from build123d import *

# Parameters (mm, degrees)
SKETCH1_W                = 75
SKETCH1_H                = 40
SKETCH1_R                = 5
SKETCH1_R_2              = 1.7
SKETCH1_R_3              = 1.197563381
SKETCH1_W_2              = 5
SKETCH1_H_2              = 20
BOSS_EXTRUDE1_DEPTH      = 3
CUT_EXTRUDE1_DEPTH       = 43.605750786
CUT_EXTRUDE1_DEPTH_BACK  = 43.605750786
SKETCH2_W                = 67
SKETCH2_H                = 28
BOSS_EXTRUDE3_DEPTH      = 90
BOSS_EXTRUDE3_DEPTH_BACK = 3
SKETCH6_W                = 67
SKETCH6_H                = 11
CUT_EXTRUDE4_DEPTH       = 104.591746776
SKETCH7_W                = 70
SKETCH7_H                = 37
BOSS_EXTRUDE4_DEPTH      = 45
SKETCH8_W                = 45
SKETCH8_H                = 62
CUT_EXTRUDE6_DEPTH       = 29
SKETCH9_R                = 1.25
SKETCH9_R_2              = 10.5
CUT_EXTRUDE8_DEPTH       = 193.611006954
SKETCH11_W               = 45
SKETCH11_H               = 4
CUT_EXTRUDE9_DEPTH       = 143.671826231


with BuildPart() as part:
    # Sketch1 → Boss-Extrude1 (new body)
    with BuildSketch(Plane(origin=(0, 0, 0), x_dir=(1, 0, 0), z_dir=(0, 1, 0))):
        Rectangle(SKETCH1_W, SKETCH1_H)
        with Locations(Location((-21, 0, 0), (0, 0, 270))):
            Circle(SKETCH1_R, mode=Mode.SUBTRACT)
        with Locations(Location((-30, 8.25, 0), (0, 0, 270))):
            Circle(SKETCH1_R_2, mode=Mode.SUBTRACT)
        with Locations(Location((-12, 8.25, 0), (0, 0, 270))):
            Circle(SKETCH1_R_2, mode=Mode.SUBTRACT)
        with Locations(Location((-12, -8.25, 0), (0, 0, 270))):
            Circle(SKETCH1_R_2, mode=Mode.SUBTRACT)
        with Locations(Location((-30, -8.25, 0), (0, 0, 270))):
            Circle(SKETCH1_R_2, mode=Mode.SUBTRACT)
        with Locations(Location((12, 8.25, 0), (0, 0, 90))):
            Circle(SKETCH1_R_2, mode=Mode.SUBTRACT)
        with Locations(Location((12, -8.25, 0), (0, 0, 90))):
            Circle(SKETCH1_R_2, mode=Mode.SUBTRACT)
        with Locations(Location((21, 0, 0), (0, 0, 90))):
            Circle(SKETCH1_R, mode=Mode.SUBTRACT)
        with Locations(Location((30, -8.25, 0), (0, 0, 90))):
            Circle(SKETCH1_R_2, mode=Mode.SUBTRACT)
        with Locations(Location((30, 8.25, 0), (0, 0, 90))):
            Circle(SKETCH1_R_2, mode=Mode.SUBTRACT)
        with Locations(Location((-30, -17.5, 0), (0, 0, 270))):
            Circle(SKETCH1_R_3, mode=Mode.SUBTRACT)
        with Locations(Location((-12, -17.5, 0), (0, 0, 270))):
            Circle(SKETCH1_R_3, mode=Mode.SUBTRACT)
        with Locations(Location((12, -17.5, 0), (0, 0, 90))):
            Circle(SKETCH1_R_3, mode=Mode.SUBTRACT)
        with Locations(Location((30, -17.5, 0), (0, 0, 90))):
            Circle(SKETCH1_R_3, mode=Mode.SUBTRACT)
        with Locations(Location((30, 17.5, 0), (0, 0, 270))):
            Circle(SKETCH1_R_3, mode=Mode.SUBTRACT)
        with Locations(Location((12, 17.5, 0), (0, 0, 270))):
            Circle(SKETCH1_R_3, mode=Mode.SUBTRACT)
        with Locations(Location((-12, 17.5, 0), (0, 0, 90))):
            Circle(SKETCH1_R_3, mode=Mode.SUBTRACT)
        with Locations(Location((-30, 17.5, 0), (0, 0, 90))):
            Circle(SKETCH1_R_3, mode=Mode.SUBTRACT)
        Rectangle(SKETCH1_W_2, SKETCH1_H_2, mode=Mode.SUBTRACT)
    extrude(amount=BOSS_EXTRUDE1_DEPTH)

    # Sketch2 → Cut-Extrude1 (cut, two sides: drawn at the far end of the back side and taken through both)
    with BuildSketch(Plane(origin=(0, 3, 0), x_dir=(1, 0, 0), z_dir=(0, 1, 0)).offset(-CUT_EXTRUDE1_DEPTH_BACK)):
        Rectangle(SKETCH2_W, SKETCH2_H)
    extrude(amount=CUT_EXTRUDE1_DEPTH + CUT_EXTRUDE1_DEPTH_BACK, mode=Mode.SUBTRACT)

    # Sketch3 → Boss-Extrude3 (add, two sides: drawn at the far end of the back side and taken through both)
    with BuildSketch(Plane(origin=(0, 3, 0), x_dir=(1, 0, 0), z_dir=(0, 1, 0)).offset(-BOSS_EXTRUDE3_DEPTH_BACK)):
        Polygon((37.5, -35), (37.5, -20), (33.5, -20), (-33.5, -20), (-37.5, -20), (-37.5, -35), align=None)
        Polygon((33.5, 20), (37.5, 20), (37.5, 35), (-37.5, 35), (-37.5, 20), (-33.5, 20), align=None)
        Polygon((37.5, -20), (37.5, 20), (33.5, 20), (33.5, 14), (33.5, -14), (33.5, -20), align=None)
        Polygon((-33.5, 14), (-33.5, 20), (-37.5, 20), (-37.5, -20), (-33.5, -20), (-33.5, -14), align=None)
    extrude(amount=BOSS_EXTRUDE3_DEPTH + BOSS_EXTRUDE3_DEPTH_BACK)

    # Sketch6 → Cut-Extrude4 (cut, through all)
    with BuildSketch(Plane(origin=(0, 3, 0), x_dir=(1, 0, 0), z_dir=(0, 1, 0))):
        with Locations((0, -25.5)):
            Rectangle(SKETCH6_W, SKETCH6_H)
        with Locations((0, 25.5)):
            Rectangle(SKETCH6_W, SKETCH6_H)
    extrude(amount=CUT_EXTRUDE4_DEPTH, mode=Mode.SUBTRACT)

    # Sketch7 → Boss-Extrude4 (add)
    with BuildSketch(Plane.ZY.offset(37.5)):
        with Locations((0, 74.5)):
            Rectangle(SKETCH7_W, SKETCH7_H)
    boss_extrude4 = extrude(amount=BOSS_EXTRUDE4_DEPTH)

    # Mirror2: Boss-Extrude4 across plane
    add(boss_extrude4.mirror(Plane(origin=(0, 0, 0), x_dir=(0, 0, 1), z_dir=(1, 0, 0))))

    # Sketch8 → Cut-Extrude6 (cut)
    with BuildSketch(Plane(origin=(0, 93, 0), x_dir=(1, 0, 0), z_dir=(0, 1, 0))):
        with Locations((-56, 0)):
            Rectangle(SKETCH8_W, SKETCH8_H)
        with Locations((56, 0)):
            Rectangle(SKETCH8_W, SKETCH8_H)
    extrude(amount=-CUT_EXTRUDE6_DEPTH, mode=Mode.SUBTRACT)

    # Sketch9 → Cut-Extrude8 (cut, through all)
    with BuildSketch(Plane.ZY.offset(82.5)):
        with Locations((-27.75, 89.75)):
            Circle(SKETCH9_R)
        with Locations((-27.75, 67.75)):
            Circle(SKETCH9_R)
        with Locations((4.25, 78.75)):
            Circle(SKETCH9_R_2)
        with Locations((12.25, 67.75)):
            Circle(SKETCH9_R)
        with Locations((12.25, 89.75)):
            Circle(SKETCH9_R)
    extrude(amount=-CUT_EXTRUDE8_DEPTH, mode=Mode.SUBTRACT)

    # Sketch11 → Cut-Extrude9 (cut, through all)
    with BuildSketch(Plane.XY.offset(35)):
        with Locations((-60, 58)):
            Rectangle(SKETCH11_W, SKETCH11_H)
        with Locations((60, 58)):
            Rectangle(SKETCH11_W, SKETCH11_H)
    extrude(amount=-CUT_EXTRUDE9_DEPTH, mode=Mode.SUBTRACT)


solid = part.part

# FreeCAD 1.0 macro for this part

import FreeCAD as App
import Part
import Sketcher

doc = App.newDocument("Part")
body = doc.addObject("PartDesign::Body", "Body")

# Sketch on XZ plane
sketch1 = doc.addObject("Sketcher::SketchObject", "Sketch")
body.addObject(sketch1)
sketch1.AttachmentSupport = (doc.XZ_Plane, [""])
sketch1.MapMode = "FlatFace"
sketch1.addGeometry([
    Part.LineSegment(App.Vector(-37.5, -20, 0), App.Vector(-37.5, 20, 0)),  # 0
    Part.LineSegment(App.Vector(-37.5, 20, 0), App.Vector(37.5, 20, 0)),  # 1
    Part.LineSegment(App.Vector(37.5, 20, 0), App.Vector(37.5, -20, 0)),  # 2
    Part.LineSegment(App.Vector(37.5, -20, 0), App.Vector(-37.5, -20, 0)),  # 3
    Part.Circle(App.Vector(-30, 17.5, 0), App.Vector(0, 0, 1), 1.2),  # 4
    Part.Circle(App.Vector(-12, 17.5, 0), App.Vector(0, 0, 1), 1.2),  # 5
    Part.Circle(App.Vector(-30, 8.2, 0), App.Vector(0, 0, 1), 1.7),  # 6
    Part.Circle(App.Vector(-12, 8.2, 0), App.Vector(0, 0, 1), 1.7),  # 7
    Part.Circle(App.Vector(12, 17.5, 0), App.Vector(0, 0, 1), 1.2),  # 8
    Part.Circle(App.Vector(30, 17.5, 0), App.Vector(0, 0, 1), 1.2),  # 9
    Part.Circle(App.Vector(12, 8.2, 0), App.Vector(0, 0, 1), 1.7),  # 10
    Part.Circle(App.Vector(30, 8.2, 0), App.Vector(0, 0, 1), 1.7),  # 11
    Part.Circle(App.Vector(-21, 0, 0), App.Vector(0, 0, 1), 5),  # 12
    Part.Circle(App.Vector(-30, -8.2, 0), App.Vector(0, 0, 1), 1.7),  # 13
    Part.LineSegment(App.Vector(2.5, 10, 0), App.Vector(-2.5, 10, 0)),  # 14
    Part.LineSegment(App.Vector(-2.5, 10, 0), App.Vector(-2.5, -10, 0)),  # 15
    Part.LineSegment(App.Vector(-2.5, -10, 0), App.Vector(2.5, -10, 0)),  # 16
    Part.LineSegment(App.Vector(2.5, -10, 0), App.Vector(2.5, 10, 0)),  # 17
    Part.Circle(App.Vector(-12, -8.2, 0), App.Vector(0, 0, 1), 1.7),  # 18
    Part.Circle(App.Vector(-30, -17.5, 0), App.Vector(0, 0, 1), 1.2),  # 19
    Part.Circle(App.Vector(-12, -17.5, 0), App.Vector(0, 0, 1), 1.2),  # 20
    Part.Circle(App.Vector(12, -8.2, 0), App.Vector(0, 0, 1), 1.7),  # 21
    Part.Circle(App.Vector(21, 0, 0), App.Vector(0, 0, 1), 5),  # 22
    Part.Circle(App.Vector(30, -8.2, 0), App.Vector(0, 0, 1), 1.7),  # 23
    Part.Circle(App.Vector(12, -17.5, 0), App.Vector(0, 0, 1), 1.2),  # 24
    Part.Circle(App.Vector(30, -17.5, 0), App.Vector(0, 0, 1), 1.2),  # 25
], False)
sketch1.addConstraint([
    Sketcher.Constraint("Coincident", 0, 2, 1, 1),
    Sketcher.Constraint("Coincident", 1, 2, 2, 1),
    Sketcher.Constraint("Coincident", 2, 2, 3, 1),
    Sketcher.Constraint("Coincident", 3, 2, 0, 1),
    Sketcher.Constraint("Coincident", 14, 2, 15, 1),
    Sketcher.Constraint("Coincident", 15, 2, 16, 1),
    Sketcher.Constraint("Coincident", 16, 2, 17, 1),
    Sketcher.Constraint("Coincident", 17, 2, 14, 1),
    Sketcher.Constraint("Vertical", 0),
    Sketcher.Constraint("Horizontal", 1),
    Sketcher.Constraint("Vertical", 2),
    Sketcher.Constraint("Horizontal", 3),
    Sketcher.Constraint("Horizontal", 14),
    Sketcher.Constraint("Vertical", 15),
    Sketcher.Constraint("Horizontal", 16),
    Sketcher.Constraint("Vertical", 17),
    Sketcher.Constraint("Equal", 4, 5),
    Sketcher.Constraint("Equal", 6, 7),
    Sketcher.Constraint("Equal", 5, 8),
    Sketcher.Constraint("Equal", 8, 9),
    Sketcher.Constraint("Equal", 7, 10),
    Sketcher.Constraint("Equal", 10, 11),
    Sketcher.Constraint("Equal", 11, 13),
    Sketcher.Constraint("Equal", 13, 18),
    Sketcher.Constraint("Equal", 9, 19),
    Sketcher.Constraint("Equal", 19, 20),
    Sketcher.Constraint("Equal", 18, 21),
    Sketcher.Constraint("Equal", 12, 22),
    Sketcher.Constraint("Equal", 21, 23),
    Sketcher.Constraint("Equal", 20, 24),
    Sketcher.Constraint("Equal", 24, 25),
    Sketcher.Constraint("Symmetric", 11, 3, 13, 3, -1, 1),
    Sketcher.Constraint("Symmetric", 10, 3, 18, 3, -1, 1),
    Sketcher.Constraint("Symmetric", 9, 3, 19, 3, -1, 1),
    Sketcher.Constraint("Symmetric", 8, 3, 20, 3, -1, 1),
    Sketcher.Constraint("Symmetric", 7, 3, 21, 3, -1, 1),
    Sketcher.Constraint("Symmetric", 12, 3, 22, 3, -1, 1),
    Sketcher.Constraint("Symmetric", 6, 3, 23, 3, -1, 1),
    Sketcher.Constraint("Symmetric", 5, 3, 24, 3, -1, 1),
    Sketcher.Constraint("Symmetric", 4, 3, 25, 3, -1, 1),
    Sketcher.Constraint("Symmetric", 0, 2, 2, 2, -1, 1),
    Sketcher.Constraint("Symmetric", 14, 2, 16, 2, -1, 1),
    Sketcher.Constraint("Symmetric", 5, 3, 8, 3, -2),
    Sketcher.Constraint("Symmetric", 4, 3, 9, 3, -2),
    Sketcher.Constraint("Symmetric", 7, 3, 10, 3, -2),
    Sketcher.Constraint("Symmetric", 6, 3, 11, 3, -2),
    Sketcher.Constraint("PointOnObject", 12, 3, -1),
    Sketcher.Constraint("Horizontal", 4, 3, 5, 3),
    Sketcher.Constraint("Horizontal", 6, 3, 7, 3),
    Sketcher.Constraint("Vertical", 4, 3, 6, 3),
    Sketcher.Constraint("Vertical", 5, 3, 7, 3),
    Sketcher.Constraint("Diameter", 12, 10.0),
    Sketcher.Constraint("Diameter", 6, 3.4),
    Sketcher.Constraint("DistanceX", 1, 1, 1, 2, 75.0),
    Sketcher.Constraint("DistanceX", 14, 2, 14, 1, 5.0),
    Sketcher.Constraint("DistanceY", 0, 1, 0, 2, 40.0),
    Sketcher.Constraint("DistanceY", 15, 2, 15, 1, 20.0),
    Sketcher.Constraint("DistanceX", 4, 3, -1, 1, 30.0),
    Sketcher.Constraint("DistanceX", 5, 3, -1, 1, 12.0),
    Sketcher.Constraint("DistanceX", 12, 3, -1, 1, 21.0),
    Sketcher.Constraint("DistanceY", -1, 1, 4, 3, 17.5),
    Sketcher.Constraint("DistanceY", 13, 3, 6, 3, 16.5),
    Sketcher.Constraint("Diameter", 4, 2.395127),
])
pad1 = doc.addObject("PartDesign::Pad", "Pad")
body.addObject(pad1)
pad1.Profile = sketch1
pad1.Length = 3
pad1.Reversed = True

# Sketch on XZ plane
sketch2 = doc.addObject("Sketcher::SketchObject", "Sketch001")
body.addObject(sketch2)
sketch2.AttachmentSupport = (doc.XZ_Plane, [""])
sketch2.MapMode = "FlatFace"
sketch2.AttachmentOffset = App.Placement(App.Vector(0, 0, -3), App.Rotation())
sketch2.addGeometry([
    Part.LineSegment(App.Vector(-34, -14, 0), App.Vector(-34, 14, 0)),
    Part.LineSegment(App.Vector(-34, 14, 0), App.Vector(34, 14, 0)),
    Part.LineSegment(App.Vector(34, 14, 0), App.Vector(34, -14, 0)),
    Part.LineSegment(App.Vector(34, -14, 0), App.Vector(-34, -14, 0)),
], False)
sketch2.addConstraint([
    Sketcher.Constraint("Coincident", 0, 2, 1, 1),
    Sketcher.Constraint("Coincident", 1, 2, 2, 1),
    Sketcher.Constraint("Coincident", 2, 2, 3, 1),
    Sketcher.Constraint("Coincident", 3, 2, 0, 1),
    Sketcher.Constraint("Vertical", 0),
    Sketcher.Constraint("Horizontal", 1),
    Sketcher.Constraint("Vertical", 2),
    Sketcher.Constraint("Horizontal", 3),
    Sketcher.Constraint("Symmetric", 0, 2, 2, 2, -1, 1),
    Sketcher.Constraint("DistanceX", 1, 1, 1, 2, 67.0),
    Sketcher.Constraint("DistanceY", 0, 1, 0, 2, 28.0),
])
pocket1 = doc.addObject("PartDesign::Pocket", "Pocket")
body.addObject(pocket1)
pocket1.Profile = sketch2
pocket1.Type = "ThroughAll"
pocket1.Midplane = True

# Sketch on XZ plane
sketch3 = doc.addObject("Sketcher::SketchObject", "Sketch002")
body.addObject(sketch3)
sketch3.AttachmentSupport = (doc.XZ_Plane, [""])
sketch3.MapMode = "FlatFace"
sketch3.AttachmentOffset = App.Placement(App.Vector(0, 0, -3), App.Rotation())
sketch3.addGeometry([
    Part.LineSegment(App.Vector(38, 35, 0), App.Vector(38, -35, 0)),  # 0
    Part.LineSegment(App.Vector(38, -35, 0), App.Vector(-38, -35, 0)),  # 1
    Part.LineSegment(App.Vector(-38, -35, 0), App.Vector(-38, 35, 0)),  # 2
    Part.LineSegment(App.Vector(-38, 35, 0), App.Vector(38, 35, 0)),  # 3
    Part.LineSegment(App.Vector(-34, -20, 0), App.Vector(34, -20, 0)),  # 4
    Part.LineSegment(App.Vector(34, -20, 0), App.Vector(34, 20, 0)),  # 5
    Part.LineSegment(App.Vector(34, 20, 0), App.Vector(-34, 20, 0)),  # 6
    Part.LineSegment(App.Vector(-34, 20, 0), App.Vector(-34, -20, 0)),  # 7
], False)
sketch3.addConstraint([
    Sketcher.Constraint("Coincident", 0, 2, 1, 1),
    Sketcher.Constraint("Coincident", 1, 2, 2, 1),
    Sketcher.Constraint("Coincident", 2, 2, 3, 1),
    Sketcher.Constraint("Coincident", 3, 2, 0, 1),
    Sketcher.Constraint("Coincident", 4, 2, 5, 1),
    Sketcher.Constraint("Coincident", 5, 2, 6, 1),
    Sketcher.Constraint("Coincident", 6, 2, 7, 1),
    Sketcher.Constraint("Coincident", 7, 2, 4, 1),
    Sketcher.Constraint("Vertical", 0),
    Sketcher.Constraint("Horizontal", 1),
    Sketcher.Constraint("Vertical", 2),
    Sketcher.Constraint("Horizontal", 3),
    Sketcher.Constraint("Horizontal", 4),
    Sketcher.Constraint("Vertical", 5),
    Sketcher.Constraint("Horizontal", 6),
    Sketcher.Constraint("Vertical", 7),
    Sketcher.Constraint("Symmetric", 0, 2, 2, 2, -1, 1),
    Sketcher.Constraint("Symmetric", 4, 2, 6, 2, -1, 1),
    Sketcher.Constraint("DistanceX", 1, 2, 1, 1, 75.0),
    Sketcher.Constraint("DistanceX", 4, 1, 4, 2, 67.0),
    Sketcher.Constraint("DistanceY", 0, 2, 0, 1, 70.0),
    Sketcher.Constraint("DistanceY", 5, 1, 5, 2, 40.0),
])
pad2 = doc.addObject("PartDesign::Pad", "Pad001")
body.addObject(pad2)
pad2.Profile = sketch3
pad2.Type = "TwoLengths"
pad2.Length = 90
pad2.Length2 = 3
pad2.Reversed = True

# Sketch on XZ plane
sketch4 = doc.addObject("Sketcher::SketchObject", "Sketch003")
body.addObject(sketch4)
sketch4.AttachmentSupport = (doc.XZ_Plane, [""])
sketch4.MapMode = "FlatFace"
sketch4.AttachmentOffset = App.Placement(App.Vector(0, 0, -3), App.Rotation())
sketch4.addGeometry([
    Part.LineSegment(App.Vector(-34, 20, 0), App.Vector(-34, 31, 0)),  # 0
    Part.LineSegment(App.Vector(-34, 31, 0), App.Vector(34, 31, 0)),  # 1
    Part.LineSegment(App.Vector(34, 31, 0), App.Vector(34, 20, 0)),  # 2
    Part.LineSegment(App.Vector(34, 20, 0), App.Vector(-34, 20, 0)),  # 3
    Part.LineSegment(App.Vector(-34, -31, 0), App.Vector(-34, -20, 0)),  # 4
    Part.LineSegment(App.Vector(-34, -20, 0), App.Vector(34, -20, 0)),  # 5
    Part.LineSegment(App.Vector(34, -20, 0), App.Vector(34, -31, 0)),  # 6
    Part.LineSegment(App.Vector(34, -31, 0), App.Vector(-34, -31, 0)),  # 7
], False)
sketch4.addConstraint([
    Sketcher.Constraint("Coincident", 0, 2, 1, 1),
    Sketcher.Constraint("Coincident", 1, 2, 2, 1),
    Sketcher.Constraint("Coincident", 2, 2, 3, 1),
    Sketcher.Constraint("Coincident", 3, 2, 0, 1),
    Sketcher.Constraint("Coincident", 4, 2, 5, 1),
    Sketcher.Constraint("Coincident", 5, 2, 6, 1),
    Sketcher.Constraint("Coincident", 6, 2, 7, 1),
    Sketcher.Constraint("Coincident", 7, 2, 4, 1),
    Sketcher.Constraint("Vertical", 0),
    Sketcher.Constraint("Horizontal", 1),
    Sketcher.Constraint("Vertical", 2),
    Sketcher.Constraint("Horizontal", 3),
    Sketcher.Constraint("Vertical", 4),
    Sketcher.Constraint("Horizontal", 5),
    Sketcher.Constraint("Vertical", 6),
    Sketcher.Constraint("Horizontal", 7),
    Sketcher.Constraint("Symmetric", 2, 2, 4, 2, -1, 1),
    Sketcher.Constraint("Symmetric", 0, 2, 6, 2, -1, 1),
    Sketcher.Constraint("Vertical", 3, 2, 4, 2),
    Sketcher.Constraint("DistanceX", 1, 1, 1, 2, 67.0),
    Sketcher.Constraint("DistanceY", 0, 1, 0, 2, 11.0),
    Sketcher.Constraint("DistanceY", -1, 1, 0, 2, 31.0),
])
pocket2 = doc.addObject("PartDesign::Pocket", "Pocket001")
body.addObject(pocket2)
pocket2.Profile = sketch4
pocket2.Type = "ThroughAll"

# Sketch on YZ plane
sketch5 = doc.addObject("Sketcher::SketchObject", "Sketch004")
body.addObject(sketch5)
sketch5.AttachmentSupport = (doc.YZ_Plane, [""])
sketch5.MapMode = "FlatFace"
sketch5.AttachmentOffset = App.Placement(App.Vector(0, 0, -37.5), App.Rotation())
sketch5.addGeometry([
    Part.LineSegment(App.Vector(93, -35, 0), App.Vector(56, -35, 0)),
    Part.LineSegment(App.Vector(56, -35, 0), App.Vector(56, 35, 0)),
    Part.LineSegment(App.Vector(56, 35, 0), App.Vector(93, 35, 0)),
    Part.LineSegment(App.Vector(93, 35, 0), App.Vector(93, -35, 0)),
], False)
sketch5.addConstraint([
    Sketcher.Constraint("Coincident", 0, 2, 1, 1),
    Sketcher.Constraint("Coincident", 1, 2, 2, 1),
    Sketcher.Constraint("Coincident", 2, 2, 3, 1),
    Sketcher.Constraint("Coincident", 3, 2, 0, 1),
    Sketcher.Constraint("Horizontal", 0),
    Sketcher.Constraint("Vertical", 1),
    Sketcher.Constraint("Horizontal", 2),
    Sketcher.Constraint("Vertical", 3),
    Sketcher.Constraint("DistanceX", 0, 2, 0, 1, 37.0),
    Sketcher.Constraint("DistanceY", 1, 1, 1, 2, 70.0),
    Sketcher.Constraint("DistanceX", -1, 1, 0, 2, 56.0),
    Sketcher.Constraint("DistanceY", 0, 2, -1, 1, 35.0),
])
pad3 = doc.addObject("PartDesign::Pad", "Pad002")
body.addObject(pad3)
pad3.Profile = sketch5
pad3.Length = 45
pad3.Reversed = True
doc.recompute()

mirrored = doc.addObject("PartDesign::Mirrored", "Mirrored")
body.addObject(mirrored)
mirrored.Originals = [pad3]
mirrored.MirrorPlane = (doc.YZ_Plane, [""])
body.Tip = mirrored

# Sketch on XZ plane
sketch6 = doc.addObject("Sketcher::SketchObject", "Sketch005")
body.addObject(sketch6)
sketch6.AttachmentSupport = (doc.XZ_Plane, [""])
sketch6.MapMode = "FlatFace"
sketch6.AttachmentOffset = App.Placement(App.Vector(0, 0, -93), App.Rotation())
sketch6.addGeometry([
    Part.LineSegment(App.Vector(-78, -31, 0), App.Vector(-78, 31, 0)),  # 0
    Part.LineSegment(App.Vector(-78, 31, 0), App.Vector(-34, 31, 0)),  # 1
    Part.LineSegment(App.Vector(-34, 31, 0), App.Vector(-34, -31, 0)),  # 2
    Part.LineSegment(App.Vector(-34, -31, 0), App.Vector(-78, -31, 0)),  # 3
    Part.LineSegment(App.Vector(34, -31, 0), App.Vector(34, 31, 0)),  # 4
    Part.LineSegment(App.Vector(34, 31, 0), App.Vector(78, 31, 0)),  # 5
    Part.LineSegment(App.Vector(78, 31, 0), App.Vector(78, -31, 0)),  # 6
    Part.LineSegment(App.Vector(78, -31, 0), App.Vector(34, -31, 0)),  # 7
], False)
sketch6.addConstraint([
    Sketcher.Constraint("Coincident", 0, 2, 1, 1),
    Sketcher.Constraint("Coincident", 1, 2, 2, 1),
    Sketcher.Constraint("Coincident", 2, 2, 3, 1),
    Sketcher.Constraint("Coincident", 3, 2, 0, 1),
    Sketcher.Constraint("Coincident", 4, 2, 5, 1),
    Sketcher.Constraint("Coincident", 5, 2, 6, 1),
    Sketcher.Constraint("Coincident", 6, 2, 7, 1),
    Sketcher.Constraint("Coincident", 7, 2, 4, 1),
    Sketcher.Constraint("Vertical", 0),
    Sketcher.Constraint("Horizontal", 1),
    Sketcher.Constraint("Vertical", 2),
    Sketcher.Constraint("Horizontal", 3),
    Sketcher.Constraint("Vertical", 4),
    Sketcher.Constraint("Horizontal", 5),
    Sketcher.Constraint("Vertical", 6),
    Sketcher.Constraint("Horizontal", 7),
    Sketcher.Constraint("Symmetric", 2, 2, 4, 2, -1, 1),
    Sketcher.Constraint("Symmetric", 0, 2, 6, 2, -1, 1),
    Sketcher.Constraint("Horizontal", 1, 2, 4, 2),
    Sketcher.Constraint("DistanceX", 1, 1, 1, 2, 45.0),
    Sketcher.Constraint("DistanceY", 0, 1, 0, 2, 62.0),
    Sketcher.Constraint("DistanceX", 1, 2, 4, 2, 67.0),
])
pocket3 = doc.addObject("PartDesign::Pocket", "Pocket002")
body.addObject(pocket3)
pocket3.Profile = sketch6
pocket3.Length = 29
pocket3.Reversed = True

# Sketch on YZ plane
sketch7 = doc.addObject("Sketcher::SketchObject", "Sketch006")
body.addObject(sketch7)
sketch7.AttachmentSupport = (doc.YZ_Plane, [""])
sketch7.MapMode = "FlatFace"
sketch7.AttachmentOffset = App.Placement(App.Vector(0, 0, -82.5), App.Rotation())
sketch7.addGeometry([
    Part.Circle(App.Vector(89.8, -27.8, 0), App.Vector(0, 0, 1), 1.2),  # 0
    Part.Circle(App.Vector(67.8, -27.8, 0), App.Vector(0, 0, 1), 1.2),  # 1
    Part.Circle(App.Vector(78.8, 4.2, 0), App.Vector(0, 0, 1), 10.5),  # 2
    Part.Circle(App.Vector(67.8, 12.2, 0), App.Vector(0, 0, 1), 1.2),  # 3
    Part.Circle(App.Vector(89.8, 12.2, 0), App.Vector(0, 0, 1), 1.2),  # 4
], False)
sketch7.addConstraint([
    Sketcher.Constraint("Equal", 0, 1),
    Sketcher.Constraint("Equal", 1, 3),
    Sketcher.Constraint("Equal", 3, 4),
    Sketcher.Constraint("Horizontal", 0, 3, 1, 3),
    Sketcher.Constraint("Horizontal", 3, 3, 4, 3),
    Sketcher.Constraint("Vertical", 1, 3, 3, 3),
    Sketcher.Constraint("Vertical", 0, 3, 4, 3),
    Sketcher.Constraint("Diameter", 2, 21.0),
    Sketcher.Constraint("Diameter", 0, 2.5),
    Sketcher.Constraint("DistanceX", 1, 3, 0, 3, 22.0),
    Sketcher.Constraint("DistanceX", 2, 3, 0, 3, 11.0),
    Sketcher.Constraint("DistanceY", 0, 3, 2, 3, 32.0),
    Sketcher.Constraint("DistanceY", 2, 3, 3, 3, 8.0),
    Sketcher.Constraint("DistanceX", -1, 1, 0, 3, 89.75),
    Sketcher.Constraint("DistanceY", 0, 3, -1, 1, 27.75),
])
pocket4 = doc.addObject("PartDesign::Pocket", "Pocket003")
body.addObject(pocket4)
pocket4.Profile = sketch7
pocket4.Type = "ThroughAll"
pocket4.Reversed = True

# Sketch on XY plane
sketch8 = doc.addObject("Sketcher::SketchObject", "Sketch007")
body.addObject(sketch8)
sketch8.AttachmentSupport = (doc.XY_Plane, [""])
sketch8.MapMode = "FlatFace"
sketch8.AttachmentOffset = App.Placement(App.Vector(0, 0, 35), App.Rotation())
sketch8.addGeometry([
    Part.LineSegment(App.Vector(-82.5, 60, 0), App.Vector(-82.5, 56, 0)),  # 0
    Part.LineSegment(App.Vector(-82.5, 56, 0), App.Vector(-37.5, 56, 0)),  # 1
    Part.LineSegment(App.Vector(-37.5, 56, 0), App.Vector(-37.5, 60, 0)),  # 2
    Part.LineSegment(App.Vector(-37.5, 60, 0), App.Vector(-82.5, 60, 0)),  # 3
    Part.LineSegment(App.Vector(37.5, 60, 0), App.Vector(37.5, 56, 0)),  # 4
    Part.LineSegment(App.Vector(37.5, 56, 0), App.Vector(82.5, 56, 0)),  # 5
    Part.LineSegment(App.Vector(82.5, 56, 0), App.Vector(82.5, 60, 0)),  # 6
    Part.LineSegment(App.Vector(82.5, 60, 0), App.Vector(37.5, 60, 0)),  # 7
], False)
sketch8.addConstraint([
    Sketcher.Constraint("Coincident", 0, 2, 1, 1),
    Sketcher.Constraint("Coincident", 1, 2, 2, 1),
    Sketcher.Constraint("Coincident", 2, 2, 3, 1),
    Sketcher.Constraint("Coincident", 3, 2, 0, 1),
    Sketcher.Constraint("Coincident", 4, 2, 5, 1),
    Sketcher.Constraint("Coincident", 5, 2, 6, 1),
    Sketcher.Constraint("Coincident", 6, 2, 7, 1),
    Sketcher.Constraint("Coincident", 7, 2, 4, 1),
    Sketcher.Constraint("Vertical", 0),
    Sketcher.Constraint("Horizontal", 1),
    Sketcher.Constraint("Vertical", 2),
    Sketcher.Constraint("Horizontal", 3),
    Sketcher.Constraint("Vertical", 4),
    Sketcher.Constraint("Horizontal", 5),
    Sketcher.Constraint("Vertical", 6),
    Sketcher.Constraint("Horizontal", 7),
    Sketcher.Constraint("Symmetric", 1, 2, 4, 2, -2),
    Sketcher.Constraint("Symmetric", 3, 2, 6, 2, -2),
    Sketcher.Constraint("DistanceX", 1, 1, 1, 2, 45.0),
    Sketcher.Constraint("DistanceY", 0, 2, 0, 1, 4.0),
    Sketcher.Constraint("DistanceY", -1, 1, 0, 2, 56.0),
    Sketcher.Constraint("DistanceX", 1, 2, 4, 2, 75.0),
])
pocket5 = doc.addObject("PartDesign::Pocket", "Pocket004")
body.addObject(pocket5)
pocket5.Profile = sketch8
pocket5.Type = "ThroughAll"

doc.recompute()
